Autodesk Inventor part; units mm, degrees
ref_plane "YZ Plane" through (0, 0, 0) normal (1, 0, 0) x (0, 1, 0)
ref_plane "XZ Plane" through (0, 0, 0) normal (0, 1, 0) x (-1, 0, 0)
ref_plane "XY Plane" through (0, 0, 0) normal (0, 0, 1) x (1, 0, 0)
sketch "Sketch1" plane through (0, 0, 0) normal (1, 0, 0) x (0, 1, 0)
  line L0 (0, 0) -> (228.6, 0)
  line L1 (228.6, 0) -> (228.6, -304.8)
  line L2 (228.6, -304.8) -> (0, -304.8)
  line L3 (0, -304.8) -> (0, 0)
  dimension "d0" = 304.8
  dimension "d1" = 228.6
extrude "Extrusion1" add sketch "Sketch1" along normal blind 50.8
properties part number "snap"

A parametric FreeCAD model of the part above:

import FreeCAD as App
import Part
import Sketcher

V = App.Vector
Q = App.Units.Quantity

doc = App.newDocument("Part")
body = doc.addObject("PartDesign::Body", "Body")

# Sketch on YZ plane
sketch1 = doc.addObject("Sketcher::SketchObject", "Sketch")
body.addObject(sketch1)
sketch1.AttachmentSupport = (doc.YZ_Plane, [""])
sketch1.MapMode = "FlatFace"
sketch1.addGeometry([
    Part.LineSegment(V(228.6, 0, 0), V(0, 0, 0)),
    Part.LineSegment(V(0, 0, 0), V(0, -304.8, 0)),
    Part.LineSegment(V(0, -304.8, 0), V(228.6, -304.8, 0)),
    Part.LineSegment(V(228.6, -304.8, 0), V(228.6, 0, 0)),
], False)
sketch1.addConstraint([
    Sketcher.Constraint("Coincident", 0, 2, 1, 1),
    Sketcher.Constraint("Coincident", 1, 2, 2, 1),
    Sketcher.Constraint("Coincident", 2, 2, 3, 1),
    Sketcher.Constraint("Coincident", 3, 2, 0, 1),
    Sketcher.Constraint("Horizontal", 0),
    Sketcher.Constraint("Vertical", 1),
    Sketcher.Constraint("Horizontal", 2),
    Sketcher.Constraint("Vertical", 3),
    Sketcher.Constraint("Coincident", 0, 2, -1, 1),
    Sketcher.Constraint("DistanceX", 0, 2, 0, 1, Q("9 in")),
    Sketcher.Constraint("DistanceY", 1, 2, 1, 1, Q("12 in")),
])
pad1 = doc.addObject("PartDesign::Pad", "Pad")
body.addObject(pad1)
pad1.Profile = sketch1
pad1.Length = Q("2 in")

doc.recompute()
